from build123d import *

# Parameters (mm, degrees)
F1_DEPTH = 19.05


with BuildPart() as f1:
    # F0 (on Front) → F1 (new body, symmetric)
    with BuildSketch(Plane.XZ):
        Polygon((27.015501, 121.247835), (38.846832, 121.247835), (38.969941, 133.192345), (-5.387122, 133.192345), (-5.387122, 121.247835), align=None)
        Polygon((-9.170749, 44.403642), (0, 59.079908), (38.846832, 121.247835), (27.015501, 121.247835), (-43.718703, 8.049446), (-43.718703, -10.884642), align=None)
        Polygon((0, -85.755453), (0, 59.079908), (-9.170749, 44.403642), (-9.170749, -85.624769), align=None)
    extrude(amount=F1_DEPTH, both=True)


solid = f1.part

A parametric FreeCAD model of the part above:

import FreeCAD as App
import Part
import Sketcher
from FreeCAD import Vector
Q = App.Units.Quantity

doc = App.newDocument("Part")
body = doc.addObject("PartDesign::Body", "Body")

# Sketch on XZ plane
sketch1 = doc.addObject("Sketcher::SketchObject", "Sketch")
body.addObject(sketch1)
sketch1.AttachmentSupport = (doc.XZ_Plane, [""])
sketch1.MapMode = "FlatFace"
sketch1.addGeometry(Part.LineSegment(Vector(39, 121, 0), Vector(39, 133, 0)), False)
sketch1.addGeometry(Part.LineSegment(Vector(39, 133, 0), Vector(-5, 133, 0)), False)
sketch1.addGeometry(Part.LineSegment(Vector(-5, 133, 0), Vector(-5, 121, 0)), False)
sketch1.addGeometry(Part.LineSegment(Vector(-5, 121, 0), Vector(27, 121, 0)), False)
sketch1.addGeometry(Part.LineSegment(Vector(27, 121, 0), Vector(-44, 8, 0)), False)
sketch1.addGeometry(Part.LineSegment(Vector(-44, 8, 0), Vector(-44, -11, 0)), False)
sketch1.addGeometry(Part.LineSegment(Vector(-44, -11, 0), Vector(-9, 44, 0)), False)
sketch1.addGeometry(Part.LineSegment(Vector(-9, 44, 0), Vector(-9, -86, 0)), False)
sketch1.addGeometry(Part.LineSegment(Vector(-9, -86, 0), Vector(0, -86, 0)), False)
sketch1.addGeometry(Part.LineSegment(Vector(0, -86, 0), Vector(0, 59, 0)), False)
sketch1.addGeometry(Part.LineSegment(Vector(0, 59, 0), Vector(39, 121, 0)), False)
sketch1.addConstraint(Sketcher.Constraint("Coincident", 0, 2, 1, 1))
sketch1.addConstraint(Sketcher.Constraint("Coincident", 1, 2, 2, 1))
sketch1.addConstraint(Sketcher.Constraint("Coincident", 2, 2, 3, 1))
sketch1.addConstraint(Sketcher.Constraint("Coincident", 3, 2, 4, 1))
sketch1.addConstraint(Sketcher.Constraint("Coincident", 4, 2, 5, 1))
sketch1.addConstraint(Sketcher.Constraint("Coincident", 5, 2, 6, 1))
sketch1.addConstraint(Sketcher.Constraint("Coincident", 6, 2, 7, 1))
sketch1.addConstraint(Sketcher.Constraint("Coincident", 7, 2, 8, 1))
sketch1.addConstraint(Sketcher.Constraint("Coincident", 8, 2, 9, 1))
sketch1.addConstraint(Sketcher.Constraint("Coincident", 9, 2, 10, 1))
sketch1.addConstraint(Sketcher.Constraint("Coincident", 10, 2, 0, 1))
sketch1.addConstraint(Sketcher.Constraint("Horizontal", 1))
sketch1.addConstraint(Sketcher.Constraint("Vertical", 2))
sketch1.addConstraint(Sketcher.Constraint("Horizontal", 3))
sketch1.addConstraint(Sketcher.Constraint("Vertical", 5))
sketch1.addConstraint(Sketcher.Constraint("Vertical", 7))
sketch1.addConstraint(Sketcher.Constraint("Vertical", 9))
sketch1.addConstraint(Sketcher.Constraint("PointOnObject", 8, 2, -2))
sketch1.addConstraint(Sketcher.Constraint("Parallel", 4, 6))
sketch1.addConstraint(Sketcher.Constraint("Parallel", 6, 10))
sketch1.addConstraint(Sketcher.Constraint("Horizontal", 3, 2, 10, 2))
sketch1.addConstraint(Sketcher.Constraint("Angle", 4, Q("-122 deg")))
sketch1.addConstraint(Sketcher.Constraint("DistanceY", 2, 2, 2, 1, 11.94451))
sketch1.addConstraint(Sketcher.Constraint("DistanceY", 7, 2, 7, 1, 130.028411))
sketch1.addConstraint(Sketcher.Constraint("DistanceY", 9, 1, 9, 2, 144.835361))
sketch1.addConstraint(Sketcher.Constraint("DistanceX", -1, 1, 3, 2, 27.015501))
sketch1.addConstraint(Sketcher.Constraint("DistanceY", 4, 2, 1, 2, 125.142899))
sketch1.addConstraint(Sketcher.Constraint("DistanceY", 8, 2, 4, 2, 93.804899))
sketch1.addConstraint(Sketcher.Constraint("Distance", 6, 65.19475))
sketch1.addConstraint(Sketcher.Constraint("Distance", 8, 9.17168))
sketch1.addConstraint(Sketcher.Constraint("DistanceX", 1, 2, 1, 1, 44.357063))
sketch1.addConstraint(Sketcher.Constraint("DistanceX", 3, 1, 3, 2, 32.402623))
sketch1.addConstraint(Sketcher.Constraint("DistanceY", -1, 1, 6, 2, 44.403642))
pad1 = doc.addObject("PartDesign::Pad", "Pad")
body.addObject(pad1)
pad1.Profile = sketch1
pad1.Length = Q("1.5 in")
pad1.Midplane = True

doc.recompute()
